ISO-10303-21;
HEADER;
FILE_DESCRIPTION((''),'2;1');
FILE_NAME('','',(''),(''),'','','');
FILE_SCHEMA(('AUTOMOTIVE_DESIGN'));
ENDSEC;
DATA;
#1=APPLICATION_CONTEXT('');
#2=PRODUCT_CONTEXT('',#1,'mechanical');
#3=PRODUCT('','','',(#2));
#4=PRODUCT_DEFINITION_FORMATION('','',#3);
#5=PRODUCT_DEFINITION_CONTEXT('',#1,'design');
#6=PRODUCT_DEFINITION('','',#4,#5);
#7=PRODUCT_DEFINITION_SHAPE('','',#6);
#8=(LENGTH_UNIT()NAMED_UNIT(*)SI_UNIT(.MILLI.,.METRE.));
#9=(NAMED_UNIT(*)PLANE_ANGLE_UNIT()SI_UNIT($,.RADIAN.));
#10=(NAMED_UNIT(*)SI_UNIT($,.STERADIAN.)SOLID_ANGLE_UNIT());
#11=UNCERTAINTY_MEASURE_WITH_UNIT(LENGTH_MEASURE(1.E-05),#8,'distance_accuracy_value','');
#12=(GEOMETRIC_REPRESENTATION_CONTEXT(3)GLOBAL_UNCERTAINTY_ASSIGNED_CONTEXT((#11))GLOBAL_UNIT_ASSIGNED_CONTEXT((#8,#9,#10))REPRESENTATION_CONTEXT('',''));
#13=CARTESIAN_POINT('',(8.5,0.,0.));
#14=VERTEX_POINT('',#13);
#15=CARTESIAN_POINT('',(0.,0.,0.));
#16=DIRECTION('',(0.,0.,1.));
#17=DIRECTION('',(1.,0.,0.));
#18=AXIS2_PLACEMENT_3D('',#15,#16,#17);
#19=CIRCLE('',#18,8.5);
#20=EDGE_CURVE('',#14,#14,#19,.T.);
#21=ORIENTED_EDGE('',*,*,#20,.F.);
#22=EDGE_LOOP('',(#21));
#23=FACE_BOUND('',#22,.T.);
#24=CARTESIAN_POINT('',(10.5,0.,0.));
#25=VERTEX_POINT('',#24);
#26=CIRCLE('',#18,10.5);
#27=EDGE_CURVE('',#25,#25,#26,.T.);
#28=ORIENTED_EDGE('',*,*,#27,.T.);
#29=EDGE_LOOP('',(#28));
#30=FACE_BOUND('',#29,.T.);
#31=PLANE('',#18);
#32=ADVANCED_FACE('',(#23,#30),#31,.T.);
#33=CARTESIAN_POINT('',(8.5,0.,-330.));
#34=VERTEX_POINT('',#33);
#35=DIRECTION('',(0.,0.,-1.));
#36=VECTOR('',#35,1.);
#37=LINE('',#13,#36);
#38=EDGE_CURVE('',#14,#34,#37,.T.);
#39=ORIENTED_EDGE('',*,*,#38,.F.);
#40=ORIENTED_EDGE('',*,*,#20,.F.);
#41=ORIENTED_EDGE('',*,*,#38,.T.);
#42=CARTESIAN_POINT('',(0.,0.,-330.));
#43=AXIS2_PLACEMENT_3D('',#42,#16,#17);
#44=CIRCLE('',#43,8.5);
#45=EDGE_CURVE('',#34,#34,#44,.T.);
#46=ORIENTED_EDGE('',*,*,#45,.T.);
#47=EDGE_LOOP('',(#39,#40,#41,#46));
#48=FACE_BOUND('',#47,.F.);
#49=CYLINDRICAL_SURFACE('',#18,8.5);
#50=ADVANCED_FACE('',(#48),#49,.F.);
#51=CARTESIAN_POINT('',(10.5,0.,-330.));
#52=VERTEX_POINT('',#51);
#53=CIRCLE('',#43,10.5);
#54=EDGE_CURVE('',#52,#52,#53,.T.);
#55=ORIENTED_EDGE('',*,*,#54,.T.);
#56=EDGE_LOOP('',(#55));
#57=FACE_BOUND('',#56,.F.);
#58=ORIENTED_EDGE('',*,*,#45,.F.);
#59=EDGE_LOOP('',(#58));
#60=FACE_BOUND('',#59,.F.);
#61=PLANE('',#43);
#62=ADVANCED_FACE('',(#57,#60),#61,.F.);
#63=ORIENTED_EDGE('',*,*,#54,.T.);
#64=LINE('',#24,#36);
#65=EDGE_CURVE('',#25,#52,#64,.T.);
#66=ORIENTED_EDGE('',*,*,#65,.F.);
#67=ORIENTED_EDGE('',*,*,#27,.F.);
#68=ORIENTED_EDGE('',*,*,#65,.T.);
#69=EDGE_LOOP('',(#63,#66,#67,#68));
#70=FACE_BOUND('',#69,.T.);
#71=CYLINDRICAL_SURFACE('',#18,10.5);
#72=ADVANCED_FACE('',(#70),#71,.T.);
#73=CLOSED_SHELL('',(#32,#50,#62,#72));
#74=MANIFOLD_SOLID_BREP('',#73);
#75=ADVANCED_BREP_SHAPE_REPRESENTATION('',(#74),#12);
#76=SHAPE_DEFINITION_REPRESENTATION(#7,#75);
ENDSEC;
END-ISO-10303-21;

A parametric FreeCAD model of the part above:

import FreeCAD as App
import Part
import Sketcher

doc = App.newDocument("Part")
params = doc.addObject("Spreadsheet::Sheet", "Params")
for row, (alias, value) in enumerate([
    ("sketch1_diameter", "21 mm"),
    ("sketch1_diameter2", "17 mm"),
    ("pad1_length", "330 mm"),
], start=1):
    params.set(f"A{row}", alias)
    params.set(f"B{row}", "=" + value)
    params.setAlias(f"B{row}", alias)

body = doc.addObject("PartDesign::Body", "Body")

# Sketch on XY plane
sketch1 = body.newObject("Sketcher::SketchObject", "Sketch")
sketch1.AttachmentSupport = (doc.getObject("XY_Plane"), [""])
sketch1.MapMode = "FlatFace"
sketch1.addGeometry([
    Part.Circle(App.Vector(0, 0, 0), App.Vector(0, 0, 1), 10),
    Part.Circle(App.Vector(0, 0, 0), App.Vector(0, 0, 1), 8),
], False)
sketch1.addConstraint([
    Sketcher.Constraint("Coincident", 0, 3, -1, 1),
    Sketcher.Constraint("Coincident", 1, 3, -1, 1),
    Sketcher.Constraint("Diameter", 0, 21.0),
    Sketcher.Constraint("Diameter", 1, 17.0),
])
sketch1.setExpression("Constraints[2]", "Params.sketch1_diameter")
sketch1.setExpression("Constraints[3]", "Params.sketch1_diameter2")
pad1 = body.newObject("PartDesign::Pad", "Pad")
pad1.Profile = sketch1
pad1.setExpression("Length", "Params.pad1_length")
pad1.Reversed = True

doc.recompute()
